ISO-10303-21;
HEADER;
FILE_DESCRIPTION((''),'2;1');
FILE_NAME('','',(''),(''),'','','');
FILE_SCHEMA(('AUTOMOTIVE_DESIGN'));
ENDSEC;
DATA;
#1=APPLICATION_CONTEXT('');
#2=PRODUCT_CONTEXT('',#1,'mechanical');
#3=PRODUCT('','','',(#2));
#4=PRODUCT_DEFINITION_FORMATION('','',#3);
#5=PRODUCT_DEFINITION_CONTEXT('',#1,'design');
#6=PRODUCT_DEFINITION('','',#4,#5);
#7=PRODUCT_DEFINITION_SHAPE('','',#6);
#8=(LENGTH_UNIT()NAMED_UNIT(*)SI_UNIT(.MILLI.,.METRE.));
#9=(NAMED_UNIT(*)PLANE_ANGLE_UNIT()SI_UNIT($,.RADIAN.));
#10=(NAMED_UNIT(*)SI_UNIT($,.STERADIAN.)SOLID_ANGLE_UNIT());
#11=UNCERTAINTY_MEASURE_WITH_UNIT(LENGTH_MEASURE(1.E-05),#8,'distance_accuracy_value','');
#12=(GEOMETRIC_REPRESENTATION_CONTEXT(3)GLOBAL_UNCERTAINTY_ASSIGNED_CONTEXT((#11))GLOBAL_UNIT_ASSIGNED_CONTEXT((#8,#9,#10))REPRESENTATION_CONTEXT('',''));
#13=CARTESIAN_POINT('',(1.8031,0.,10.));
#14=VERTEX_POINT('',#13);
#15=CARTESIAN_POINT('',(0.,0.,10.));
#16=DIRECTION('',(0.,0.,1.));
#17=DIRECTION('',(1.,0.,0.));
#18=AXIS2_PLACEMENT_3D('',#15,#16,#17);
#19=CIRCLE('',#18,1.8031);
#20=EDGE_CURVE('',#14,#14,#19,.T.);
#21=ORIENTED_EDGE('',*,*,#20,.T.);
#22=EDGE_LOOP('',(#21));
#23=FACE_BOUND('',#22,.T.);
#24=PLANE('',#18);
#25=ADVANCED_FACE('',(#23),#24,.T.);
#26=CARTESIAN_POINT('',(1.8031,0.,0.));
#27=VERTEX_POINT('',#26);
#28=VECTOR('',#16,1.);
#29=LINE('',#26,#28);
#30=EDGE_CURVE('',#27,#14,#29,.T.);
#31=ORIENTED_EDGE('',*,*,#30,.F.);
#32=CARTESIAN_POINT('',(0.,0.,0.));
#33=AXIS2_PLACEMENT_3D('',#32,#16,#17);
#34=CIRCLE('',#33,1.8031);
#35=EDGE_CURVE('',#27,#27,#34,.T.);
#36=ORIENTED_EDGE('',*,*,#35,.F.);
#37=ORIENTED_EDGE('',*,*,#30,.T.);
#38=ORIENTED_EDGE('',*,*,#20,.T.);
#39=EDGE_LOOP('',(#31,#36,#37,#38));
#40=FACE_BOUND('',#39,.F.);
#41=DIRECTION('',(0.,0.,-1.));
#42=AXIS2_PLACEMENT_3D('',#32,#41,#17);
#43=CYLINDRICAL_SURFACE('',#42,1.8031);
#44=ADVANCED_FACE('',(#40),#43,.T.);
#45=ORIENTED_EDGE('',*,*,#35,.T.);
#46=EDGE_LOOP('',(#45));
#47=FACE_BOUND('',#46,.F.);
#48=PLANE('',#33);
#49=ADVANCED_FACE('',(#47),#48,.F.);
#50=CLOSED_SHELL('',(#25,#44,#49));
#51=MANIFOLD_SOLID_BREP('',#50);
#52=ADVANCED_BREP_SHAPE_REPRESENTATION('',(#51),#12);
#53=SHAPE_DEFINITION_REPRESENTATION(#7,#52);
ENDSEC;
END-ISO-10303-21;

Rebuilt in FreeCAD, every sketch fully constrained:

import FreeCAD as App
import Part
import Sketcher

doc = App.newDocument("Part")
body = doc.addObject("PartDesign::Body", "Body")

# Sketch on XY plane
sketch1 = body.newObject("Sketcher::SketchObject", "Sketch")
sketch1.AttachmentSupport = (doc.getObject("XY_Plane"), [""])
sketch1.MapMode = "FlatFace"
sketch1.addGeometry(Part.Circle(App.Vector(0, 0, 0), App.Vector(0, 0, 1), 1.8), False)
sketch1.addConstraint([
    Sketcher.Constraint("Coincident", 0, 3, -1, 1),
    Sketcher.Constraint("Diameter", 0, 3.6062),
])
pad1 = body.newObject("PartDesign::Pad", "Pad")
pad1.Profile = sketch1
pad1.Length = 10

doc.recompute()
